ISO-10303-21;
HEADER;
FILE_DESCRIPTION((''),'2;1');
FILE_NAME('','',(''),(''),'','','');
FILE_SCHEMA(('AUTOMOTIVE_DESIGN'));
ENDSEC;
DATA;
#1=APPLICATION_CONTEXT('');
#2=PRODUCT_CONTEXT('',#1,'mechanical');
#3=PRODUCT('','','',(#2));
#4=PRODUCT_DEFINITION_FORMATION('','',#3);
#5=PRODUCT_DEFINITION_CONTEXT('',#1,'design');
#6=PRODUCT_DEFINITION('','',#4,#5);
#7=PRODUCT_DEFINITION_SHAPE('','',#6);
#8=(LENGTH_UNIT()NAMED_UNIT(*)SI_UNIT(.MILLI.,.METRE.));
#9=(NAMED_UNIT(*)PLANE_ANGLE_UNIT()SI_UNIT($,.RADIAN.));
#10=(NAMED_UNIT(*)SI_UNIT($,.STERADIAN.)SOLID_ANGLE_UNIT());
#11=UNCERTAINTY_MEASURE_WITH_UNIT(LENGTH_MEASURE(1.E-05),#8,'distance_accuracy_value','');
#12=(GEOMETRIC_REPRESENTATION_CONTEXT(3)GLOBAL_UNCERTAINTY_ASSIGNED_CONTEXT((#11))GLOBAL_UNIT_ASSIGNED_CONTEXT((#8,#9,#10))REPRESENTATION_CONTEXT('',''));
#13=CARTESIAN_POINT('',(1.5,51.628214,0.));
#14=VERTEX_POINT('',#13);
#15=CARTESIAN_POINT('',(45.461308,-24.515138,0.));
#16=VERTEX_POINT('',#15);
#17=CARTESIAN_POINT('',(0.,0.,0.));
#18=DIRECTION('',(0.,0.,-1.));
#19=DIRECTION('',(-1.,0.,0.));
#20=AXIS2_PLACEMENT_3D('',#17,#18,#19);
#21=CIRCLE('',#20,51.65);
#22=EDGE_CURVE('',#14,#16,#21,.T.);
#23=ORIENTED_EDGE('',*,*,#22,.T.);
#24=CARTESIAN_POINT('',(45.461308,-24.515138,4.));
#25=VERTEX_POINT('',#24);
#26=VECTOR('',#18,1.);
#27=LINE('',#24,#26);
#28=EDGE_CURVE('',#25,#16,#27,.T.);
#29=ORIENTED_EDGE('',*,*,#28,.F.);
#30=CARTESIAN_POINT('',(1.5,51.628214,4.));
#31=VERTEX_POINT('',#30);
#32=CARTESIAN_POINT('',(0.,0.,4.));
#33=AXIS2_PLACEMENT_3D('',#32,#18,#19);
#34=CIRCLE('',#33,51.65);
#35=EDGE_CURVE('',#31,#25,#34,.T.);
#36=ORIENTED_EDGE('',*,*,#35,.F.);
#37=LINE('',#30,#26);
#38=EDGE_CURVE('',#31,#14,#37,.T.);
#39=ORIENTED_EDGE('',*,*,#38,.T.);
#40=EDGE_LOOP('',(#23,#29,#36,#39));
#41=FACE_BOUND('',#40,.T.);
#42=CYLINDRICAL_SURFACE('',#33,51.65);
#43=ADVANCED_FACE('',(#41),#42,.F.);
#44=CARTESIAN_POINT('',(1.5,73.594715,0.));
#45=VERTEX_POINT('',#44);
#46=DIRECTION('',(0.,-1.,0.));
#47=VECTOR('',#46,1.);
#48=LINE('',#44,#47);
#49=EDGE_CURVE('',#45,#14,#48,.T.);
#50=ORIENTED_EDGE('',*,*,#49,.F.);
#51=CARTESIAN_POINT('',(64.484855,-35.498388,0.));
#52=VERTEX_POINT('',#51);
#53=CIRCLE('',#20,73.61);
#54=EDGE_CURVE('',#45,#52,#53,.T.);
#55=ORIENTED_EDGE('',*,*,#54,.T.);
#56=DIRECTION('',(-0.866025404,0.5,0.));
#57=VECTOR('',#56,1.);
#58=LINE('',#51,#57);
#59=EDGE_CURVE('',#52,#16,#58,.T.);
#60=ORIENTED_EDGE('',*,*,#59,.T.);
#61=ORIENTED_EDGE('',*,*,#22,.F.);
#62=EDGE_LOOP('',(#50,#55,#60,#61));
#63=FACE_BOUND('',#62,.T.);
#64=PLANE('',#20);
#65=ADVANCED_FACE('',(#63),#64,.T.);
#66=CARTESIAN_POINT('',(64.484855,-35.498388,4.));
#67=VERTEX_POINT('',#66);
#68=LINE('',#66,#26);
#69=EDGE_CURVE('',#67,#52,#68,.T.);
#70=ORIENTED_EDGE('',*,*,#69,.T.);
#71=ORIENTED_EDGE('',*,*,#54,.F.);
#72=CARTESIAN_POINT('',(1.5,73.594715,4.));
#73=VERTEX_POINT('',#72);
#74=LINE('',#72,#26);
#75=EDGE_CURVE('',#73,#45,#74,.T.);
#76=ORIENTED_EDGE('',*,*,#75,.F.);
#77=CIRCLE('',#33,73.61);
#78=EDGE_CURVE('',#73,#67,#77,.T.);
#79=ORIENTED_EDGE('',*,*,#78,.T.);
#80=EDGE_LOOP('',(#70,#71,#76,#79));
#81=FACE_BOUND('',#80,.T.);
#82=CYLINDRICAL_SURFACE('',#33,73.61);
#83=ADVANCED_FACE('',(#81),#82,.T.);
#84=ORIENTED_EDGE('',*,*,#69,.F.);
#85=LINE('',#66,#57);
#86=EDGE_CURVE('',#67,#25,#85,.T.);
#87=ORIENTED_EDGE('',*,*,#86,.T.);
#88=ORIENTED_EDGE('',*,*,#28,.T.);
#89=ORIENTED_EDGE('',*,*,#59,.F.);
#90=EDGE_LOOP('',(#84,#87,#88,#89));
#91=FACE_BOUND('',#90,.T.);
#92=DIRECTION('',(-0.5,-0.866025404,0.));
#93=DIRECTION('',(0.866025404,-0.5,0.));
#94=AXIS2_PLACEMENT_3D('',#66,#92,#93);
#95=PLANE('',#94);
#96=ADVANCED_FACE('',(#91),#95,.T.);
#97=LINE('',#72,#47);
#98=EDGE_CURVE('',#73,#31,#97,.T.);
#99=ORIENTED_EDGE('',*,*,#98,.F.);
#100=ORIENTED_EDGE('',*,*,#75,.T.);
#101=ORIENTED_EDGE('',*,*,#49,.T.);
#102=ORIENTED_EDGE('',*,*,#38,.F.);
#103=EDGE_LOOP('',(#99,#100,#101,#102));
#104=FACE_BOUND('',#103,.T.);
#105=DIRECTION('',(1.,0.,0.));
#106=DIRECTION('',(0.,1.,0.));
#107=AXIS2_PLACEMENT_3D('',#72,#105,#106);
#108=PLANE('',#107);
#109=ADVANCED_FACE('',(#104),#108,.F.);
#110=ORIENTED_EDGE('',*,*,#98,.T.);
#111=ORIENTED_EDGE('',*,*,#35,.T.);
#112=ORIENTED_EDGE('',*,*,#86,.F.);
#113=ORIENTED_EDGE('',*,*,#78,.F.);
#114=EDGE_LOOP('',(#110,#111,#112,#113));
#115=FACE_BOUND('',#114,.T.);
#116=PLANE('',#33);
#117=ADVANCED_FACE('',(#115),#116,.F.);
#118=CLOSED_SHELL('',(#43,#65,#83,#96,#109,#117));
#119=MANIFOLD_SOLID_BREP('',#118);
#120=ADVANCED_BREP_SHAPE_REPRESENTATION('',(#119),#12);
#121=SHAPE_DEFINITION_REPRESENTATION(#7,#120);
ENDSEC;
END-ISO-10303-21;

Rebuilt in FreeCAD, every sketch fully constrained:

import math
import FreeCAD as App
import Part
import Sketcher
from FreeCAD import Vector

doc = App.newDocument("Part")
body = doc.addObject("PartDesign::Body", "Body")

# Sketch on XY plane
sketch1 = body.newObject("Sketcher::SketchObject", "Sketch")
sketch1.AttachmentSupport = (doc.getObject("XY_Plane"), [""])
sketch1.MapMode = "FlatFace"
sketch1.addGeometry([
    Part.LineSegment(Vector(1.5, 73.594715, 0), Vector(1.5, 51.628214, 0)),
    Part.ArcOfCircle(Part.Circle(Vector(0, 0, 0), Vector(0, 0, 1), 51.65), math.radians(-28.33589), math.radians(88.335803)),
    Part.LineSegment(Vector(45.461308, -24.515138, 0), Vector(64.484855, -35.498388, 0)),
    Part.ArcOfCircle(Part.Circle(Vector(0, 0, 0), Vector(0, 0, 1), 73.61), math.radians(-28.832426), math.radians(88.832365)),
], False)
sketch1.addConstraint([
    Sketcher.Constraint("Coincident", 0, 2, 1, 2),
    Sketcher.Constraint("Coincident", 1, 1, 2, 1),
    Sketcher.Constraint("Coincident", 2, 2, 3, 1),
    Sketcher.Constraint("Coincident", 3, 2, 0, 1),
    Sketcher.Constraint("Vertical", 0),
    Sketcher.Constraint("Coincident", 1, 3, -1, 1),
    Sketcher.Constraint("Coincident", 3, 3, -1, 1),
    Sketcher.Constraint("Radius", 1, 51.65),
    Sketcher.Constraint("Radius", 3, 73.61),
    Sketcher.Constraint("DistanceX", -1, 1, 0, 2, 1.5),
    Sketcher.Constraint("Distance", 2, 21.9665),
    Sketcher.Constraint("DistanceY", 2, 2, 0, 2, 87.126602),
])
pad1 = body.newObject("PartDesign::Pad", "Pad")
pad1.Profile = sketch1
pad1.Length = 4

doc.recompute()
